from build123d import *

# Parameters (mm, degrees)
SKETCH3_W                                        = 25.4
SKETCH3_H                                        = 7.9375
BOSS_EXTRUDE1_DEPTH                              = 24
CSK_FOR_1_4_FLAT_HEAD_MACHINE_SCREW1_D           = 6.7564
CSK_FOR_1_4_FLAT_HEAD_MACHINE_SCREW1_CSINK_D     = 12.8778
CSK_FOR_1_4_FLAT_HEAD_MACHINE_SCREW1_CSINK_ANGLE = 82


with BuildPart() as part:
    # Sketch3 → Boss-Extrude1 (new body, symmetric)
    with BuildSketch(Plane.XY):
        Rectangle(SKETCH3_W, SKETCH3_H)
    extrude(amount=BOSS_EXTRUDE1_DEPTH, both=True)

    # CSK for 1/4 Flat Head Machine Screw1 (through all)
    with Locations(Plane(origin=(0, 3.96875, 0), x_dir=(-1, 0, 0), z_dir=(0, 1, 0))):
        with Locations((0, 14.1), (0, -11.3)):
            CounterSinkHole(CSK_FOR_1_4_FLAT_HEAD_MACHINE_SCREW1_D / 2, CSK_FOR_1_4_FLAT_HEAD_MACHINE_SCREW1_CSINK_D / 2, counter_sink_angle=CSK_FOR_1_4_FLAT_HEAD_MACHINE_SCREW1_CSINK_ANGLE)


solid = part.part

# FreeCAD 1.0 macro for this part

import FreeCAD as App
import Part
import Sketcher

V = App.Vector
Q = App.Units.Quantity

doc = App.newDocument("Part")
body = doc.addObject("PartDesign::Body", "Body")

sketch1 = body.newObject("Sketcher::SketchObject", "Sketch")
sketch1.AttachmentSupport = (doc.getObject("XY_Plane"), [""])
sketch1.MapMode = "FlatFace"
sketch1.addGeometry(Part.LineSegment(V(-13, 4, 0), V(-13, -4, 0)), False)
sketch1.addGeometry(Part.LineSegment(V(-13, -4, 0), V(13, -4, 0)), False)
sketch1.addGeometry(Part.LineSegment(V(13, -4, 0), V(13, 4, 0)), False)
sketch1.addGeometry(Part.LineSegment(V(13, 4, 0), V(-13, 4, 0)), False)
sketch1.addConstraint(Sketcher.Constraint("Coincident", 0, 2, 1, 1))
sketch1.addConstraint(Sketcher.Constraint("Coincident", 1, 2, 2, 1))
sketch1.addConstraint(Sketcher.Constraint("Coincident", 2, 2, 3, 1))
sketch1.addConstraint(Sketcher.Constraint("Coincident", 3, 2, 0, 1))
sketch1.addConstraint(Sketcher.Constraint("Vertical", 0))
sketch1.addConstraint(Sketcher.Constraint("Horizontal", 1))
sketch1.addConstraint(Sketcher.Constraint("Vertical", 2))
sketch1.addConstraint(Sketcher.Constraint("Horizontal", 3))
sketch1.addConstraint(Sketcher.Constraint("Symmetric", 0, 2, 2, 2, -1, 1))
sketch1.addConstraint(Sketcher.Constraint("DistanceX", 1, 1, 1, 2, Q("1 in")))
sketch1.addConstraint(Sketcher.Constraint("DistanceY", 0, 2, 0, 1, Q("0.3125 in")))
pad1 = body.newObject("PartDesign::Pad", "Pad")
pad1.Profile = sketch1
pad1.Length = 48
pad1.Midplane = True

sketch2 = body.newObject("Sketcher::SketchObject", "Sketch001")
sketch2.AttachmentSupport = (doc.getObject("XZ_Plane"), [""])
sketch2.MapMode = "FlatFace"
sketch2.AttachmentOffset = App.Placement(V(0, 0, -0.15625 * 25.4), App.Rotation())
sketch2.addGeometry(Part.Circle(V(0, 14.1, 0), V(0, 0, 1), 3.4), False)
sketch2.addGeometry(Part.Circle(V(0, -11.3, 0), V(0, 0, 1), 3.4), False)
sketch2.addConstraint(Sketcher.Constraint("Equal", 0, 1))
sketch2.addConstraint(Sketcher.Constraint("PointOnObject", 0, 3, -2))
sketch2.addConstraint(Sketcher.Constraint("PointOnObject", 1, 3, -2))
sketch2.addConstraint(Sketcher.Constraint("Diameter", 0, Q("0.266 in")))
sketch2.addConstraint(Sketcher.Constraint("DistanceY", 1, 3, 0, 3, Q("1 in")))
sketch2.addConstraint(Sketcher.Constraint("DistanceY", -1, 1, 0, 3, 14.1))
doc.recompute()
hole = body.newObject("PartDesign::Hole", "Hole")
hole.Profile = sketch2
hole.ThreadType = "None"
hole.Diameter = Q("0.266 in")
hole.DepthType = "ThroughAll"
hole.HoleCutType = "Countersink"
hole.HoleCutDiameter = Q("0.507 in")
hole.HoleCutCountersinkAngle = 82
hole.Reversed = True

doc.recompute()
